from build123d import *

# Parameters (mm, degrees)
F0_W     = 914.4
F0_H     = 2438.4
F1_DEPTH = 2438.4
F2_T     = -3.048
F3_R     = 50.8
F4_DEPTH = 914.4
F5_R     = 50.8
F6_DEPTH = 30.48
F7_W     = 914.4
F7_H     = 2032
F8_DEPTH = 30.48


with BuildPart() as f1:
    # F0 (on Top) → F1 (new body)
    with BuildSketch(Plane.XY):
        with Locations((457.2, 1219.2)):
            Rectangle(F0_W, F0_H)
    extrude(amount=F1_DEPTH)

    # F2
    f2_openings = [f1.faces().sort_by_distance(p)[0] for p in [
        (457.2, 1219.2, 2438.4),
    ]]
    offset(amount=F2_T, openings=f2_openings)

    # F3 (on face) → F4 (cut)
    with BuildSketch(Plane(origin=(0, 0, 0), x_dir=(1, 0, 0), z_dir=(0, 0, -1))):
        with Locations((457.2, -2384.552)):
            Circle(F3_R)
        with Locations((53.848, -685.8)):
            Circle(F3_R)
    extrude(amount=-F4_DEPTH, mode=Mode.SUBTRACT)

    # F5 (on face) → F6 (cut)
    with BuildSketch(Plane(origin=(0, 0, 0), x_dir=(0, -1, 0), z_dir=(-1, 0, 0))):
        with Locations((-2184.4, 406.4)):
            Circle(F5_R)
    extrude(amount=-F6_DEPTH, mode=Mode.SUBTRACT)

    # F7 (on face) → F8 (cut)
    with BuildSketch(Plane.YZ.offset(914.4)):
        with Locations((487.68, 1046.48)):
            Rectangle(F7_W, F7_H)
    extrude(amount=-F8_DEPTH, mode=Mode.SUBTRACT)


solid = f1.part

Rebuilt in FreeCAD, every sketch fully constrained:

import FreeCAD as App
import Part
import Sketcher
Q = App.Units.Quantity


def faces_at(feature, points):
    """Names of the faces that lie closest to the given points."""
    faces = feature.Shape.Faces
    near = lambda p: min(range(len(faces)), key=lambda i: faces[i].distToShape(Part.Vertex(*p))[0])
    return sorted({f"Face{near(p) + 1}" for p in points})


def add_polygon(sketch, points):
    """Adds a closed chain of lines whose ends are joined by coincident constraints."""
    first, n = sketch.GeometryCount, len(points)
    for a, b in zip(points, points[1:] + points[:1]):
        sketch.addGeometry(Part.LineSegment(App.Vector(*a, 0), App.Vector(*b, 0)), False)
    for i in range(n):
        sketch.addConstraint(Sketcher.Constraint("Coincident", first + i, 2, first + (i + 1) % n, 1))

doc = App.newDocument("Part")
body = doc.addObject("PartDesign::Body", "Body")

# Sketch on XY plane
sketch1 = doc.addObject("Sketcher::SketchObject", "Sketch")
body.addObject(sketch1)
sketch1.AttachmentSupport = (doc.XY_Plane, [""])
sketch1.MapMode = "FlatFace"
add_polygon(sketch1, [(0, 2438), (0, 0), (914, 0), (914, 2438)])  # lines 0-3
sketch1.addConstraint([
    Sketcher.Constraint("Vertical", 0),
    Sketcher.Constraint("Horizontal", 1),
    Sketcher.Constraint("Vertical", 2),
    Sketcher.Constraint("Horizontal", 3),
    Sketcher.Constraint("Coincident", 0, 2, -1, 1),
    Sketcher.Constraint("DistanceX", 1, 1, 1, 2, Q("36 in")),
    Sketcher.Constraint("DistanceY", 0, 2, 0, 1, Q("96 in")),
])
pad1 = doc.addObject("PartDesign::Pad", "Pad")
body.addObject(pad1)
pad1.Profile = sketch1
pad1.Length = Q("96 in")
doc.recompute()

thickness = doc.addObject("PartDesign::Thickness", "Thickness")
body.addObject(thickness)
thickness.Base = (pad1, faces_at(pad1, [(457.2, 1219.2, 2438.4)]))
thickness.Value = Q("0.12 in")
thickness.Reversed = True
thickness.Join = "Arc"

# Sketch on XY plane
sketch2 = doc.addObject("Sketcher::SketchObject", "Sketch001")
body.addObject(sketch2)
sketch2.AttachmentSupport = (doc.XY_Plane, [""])
sketch2.MapMode = "FlatFace"
sketch2.addGeometry([
    Part.Circle(App.Vector(457, 2385, 0), App.Vector(0, 0, 1), 51),
    Part.Circle(App.Vector(54, 686, 0), App.Vector(0, 0, 1), 51),
], False)
sketch2.addConstraint([
    Sketcher.Constraint("Equal", 0, 1),
    Sketcher.Constraint("Diameter", 0, Q("4 in")),
    Sketcher.Constraint("DistanceX", -1, 1, 0, 3, Q("18 in")),
    Sketcher.Constraint("DistanceY", -1, 1, 1, 3, Q("27 in")),
    Sketcher.Constraint("DistanceY", -1, 1, 0, 3, Q("93.88 in")),
    Sketcher.Constraint("DistanceX", -1, 1, 1, 3, Q("2.12 in")),
])
pocket1 = doc.addObject("PartDesign::Pocket", "Pocket")
body.addObject(pocket1)
pocket1.Profile = sketch2
pocket1.Length = Q("36 in")
pocket1.Reversed = True

# Sketch on YZ plane
sketch3 = doc.addObject("Sketcher::SketchObject", "Sketch002")
body.addObject(sketch3)
sketch3.AttachmentSupport = (doc.YZ_Plane, [""])
sketch3.MapMode = "FlatFace"
sketch3.addGeometry(Part.Circle(App.Vector(2184, 406, 0), App.Vector(0, 0, 1), 51), False)
sketch3.addConstraint([
    Sketcher.Constraint("Diameter", 0, Q("4 in")),
    Sketcher.Constraint("DistanceX", -1, 1, 0, 3, Q("86 in")),
    Sketcher.Constraint("DistanceY", -1, 1, 0, 3, Q("16 in")),
])
pocket2 = doc.addObject("PartDesign::Pocket", "Pocket001")
body.addObject(pocket2)
pocket2.Profile = sketch3
pocket2.Length = Q("1.2 in")
pocket2.Reversed = True

# Sketch on YZ plane
sketch4 = doc.addObject("Sketcher::SketchObject", "Sketch003")
body.addObject(sketch4)
sketch4.AttachmentSupport = (doc.YZ_Plane, [""])
sketch4.MapMode = "FlatFace"
sketch4.AttachmentOffset = App.Placement(App.Vector(0, 0, 36 * 25.4), App.Rotation())
add_polygon(sketch4, [(30, 2062), (30, 30), (945, 30), (945, 2062)])  # lines 0-3
sketch4.addConstraint([
    Sketcher.Constraint("Vertical", 0),
    Sketcher.Constraint("Horizontal", 1),
    Sketcher.Constraint("Vertical", 2),
    Sketcher.Constraint("Horizontal", 3),
    Sketcher.Constraint("DistanceX", 1, 1, 1, 2, Q("36 in")),
    Sketcher.Constraint("DistanceY", 0, 2, 0, 1, Q("80 in")),
    Sketcher.Constraint("DistanceX", -1, 1, 0, 2, Q("1.2 in")),
    Sketcher.Constraint("DistanceY", -1, 1, 0, 2, Q("1.2 in")),
])
pocket3 = doc.addObject("PartDesign::Pocket", "Pocket002")
body.addObject(pocket3)
pocket3.Profile = sketch4
pocket3.Length = Q("1.2 in")

doc.recompute()
